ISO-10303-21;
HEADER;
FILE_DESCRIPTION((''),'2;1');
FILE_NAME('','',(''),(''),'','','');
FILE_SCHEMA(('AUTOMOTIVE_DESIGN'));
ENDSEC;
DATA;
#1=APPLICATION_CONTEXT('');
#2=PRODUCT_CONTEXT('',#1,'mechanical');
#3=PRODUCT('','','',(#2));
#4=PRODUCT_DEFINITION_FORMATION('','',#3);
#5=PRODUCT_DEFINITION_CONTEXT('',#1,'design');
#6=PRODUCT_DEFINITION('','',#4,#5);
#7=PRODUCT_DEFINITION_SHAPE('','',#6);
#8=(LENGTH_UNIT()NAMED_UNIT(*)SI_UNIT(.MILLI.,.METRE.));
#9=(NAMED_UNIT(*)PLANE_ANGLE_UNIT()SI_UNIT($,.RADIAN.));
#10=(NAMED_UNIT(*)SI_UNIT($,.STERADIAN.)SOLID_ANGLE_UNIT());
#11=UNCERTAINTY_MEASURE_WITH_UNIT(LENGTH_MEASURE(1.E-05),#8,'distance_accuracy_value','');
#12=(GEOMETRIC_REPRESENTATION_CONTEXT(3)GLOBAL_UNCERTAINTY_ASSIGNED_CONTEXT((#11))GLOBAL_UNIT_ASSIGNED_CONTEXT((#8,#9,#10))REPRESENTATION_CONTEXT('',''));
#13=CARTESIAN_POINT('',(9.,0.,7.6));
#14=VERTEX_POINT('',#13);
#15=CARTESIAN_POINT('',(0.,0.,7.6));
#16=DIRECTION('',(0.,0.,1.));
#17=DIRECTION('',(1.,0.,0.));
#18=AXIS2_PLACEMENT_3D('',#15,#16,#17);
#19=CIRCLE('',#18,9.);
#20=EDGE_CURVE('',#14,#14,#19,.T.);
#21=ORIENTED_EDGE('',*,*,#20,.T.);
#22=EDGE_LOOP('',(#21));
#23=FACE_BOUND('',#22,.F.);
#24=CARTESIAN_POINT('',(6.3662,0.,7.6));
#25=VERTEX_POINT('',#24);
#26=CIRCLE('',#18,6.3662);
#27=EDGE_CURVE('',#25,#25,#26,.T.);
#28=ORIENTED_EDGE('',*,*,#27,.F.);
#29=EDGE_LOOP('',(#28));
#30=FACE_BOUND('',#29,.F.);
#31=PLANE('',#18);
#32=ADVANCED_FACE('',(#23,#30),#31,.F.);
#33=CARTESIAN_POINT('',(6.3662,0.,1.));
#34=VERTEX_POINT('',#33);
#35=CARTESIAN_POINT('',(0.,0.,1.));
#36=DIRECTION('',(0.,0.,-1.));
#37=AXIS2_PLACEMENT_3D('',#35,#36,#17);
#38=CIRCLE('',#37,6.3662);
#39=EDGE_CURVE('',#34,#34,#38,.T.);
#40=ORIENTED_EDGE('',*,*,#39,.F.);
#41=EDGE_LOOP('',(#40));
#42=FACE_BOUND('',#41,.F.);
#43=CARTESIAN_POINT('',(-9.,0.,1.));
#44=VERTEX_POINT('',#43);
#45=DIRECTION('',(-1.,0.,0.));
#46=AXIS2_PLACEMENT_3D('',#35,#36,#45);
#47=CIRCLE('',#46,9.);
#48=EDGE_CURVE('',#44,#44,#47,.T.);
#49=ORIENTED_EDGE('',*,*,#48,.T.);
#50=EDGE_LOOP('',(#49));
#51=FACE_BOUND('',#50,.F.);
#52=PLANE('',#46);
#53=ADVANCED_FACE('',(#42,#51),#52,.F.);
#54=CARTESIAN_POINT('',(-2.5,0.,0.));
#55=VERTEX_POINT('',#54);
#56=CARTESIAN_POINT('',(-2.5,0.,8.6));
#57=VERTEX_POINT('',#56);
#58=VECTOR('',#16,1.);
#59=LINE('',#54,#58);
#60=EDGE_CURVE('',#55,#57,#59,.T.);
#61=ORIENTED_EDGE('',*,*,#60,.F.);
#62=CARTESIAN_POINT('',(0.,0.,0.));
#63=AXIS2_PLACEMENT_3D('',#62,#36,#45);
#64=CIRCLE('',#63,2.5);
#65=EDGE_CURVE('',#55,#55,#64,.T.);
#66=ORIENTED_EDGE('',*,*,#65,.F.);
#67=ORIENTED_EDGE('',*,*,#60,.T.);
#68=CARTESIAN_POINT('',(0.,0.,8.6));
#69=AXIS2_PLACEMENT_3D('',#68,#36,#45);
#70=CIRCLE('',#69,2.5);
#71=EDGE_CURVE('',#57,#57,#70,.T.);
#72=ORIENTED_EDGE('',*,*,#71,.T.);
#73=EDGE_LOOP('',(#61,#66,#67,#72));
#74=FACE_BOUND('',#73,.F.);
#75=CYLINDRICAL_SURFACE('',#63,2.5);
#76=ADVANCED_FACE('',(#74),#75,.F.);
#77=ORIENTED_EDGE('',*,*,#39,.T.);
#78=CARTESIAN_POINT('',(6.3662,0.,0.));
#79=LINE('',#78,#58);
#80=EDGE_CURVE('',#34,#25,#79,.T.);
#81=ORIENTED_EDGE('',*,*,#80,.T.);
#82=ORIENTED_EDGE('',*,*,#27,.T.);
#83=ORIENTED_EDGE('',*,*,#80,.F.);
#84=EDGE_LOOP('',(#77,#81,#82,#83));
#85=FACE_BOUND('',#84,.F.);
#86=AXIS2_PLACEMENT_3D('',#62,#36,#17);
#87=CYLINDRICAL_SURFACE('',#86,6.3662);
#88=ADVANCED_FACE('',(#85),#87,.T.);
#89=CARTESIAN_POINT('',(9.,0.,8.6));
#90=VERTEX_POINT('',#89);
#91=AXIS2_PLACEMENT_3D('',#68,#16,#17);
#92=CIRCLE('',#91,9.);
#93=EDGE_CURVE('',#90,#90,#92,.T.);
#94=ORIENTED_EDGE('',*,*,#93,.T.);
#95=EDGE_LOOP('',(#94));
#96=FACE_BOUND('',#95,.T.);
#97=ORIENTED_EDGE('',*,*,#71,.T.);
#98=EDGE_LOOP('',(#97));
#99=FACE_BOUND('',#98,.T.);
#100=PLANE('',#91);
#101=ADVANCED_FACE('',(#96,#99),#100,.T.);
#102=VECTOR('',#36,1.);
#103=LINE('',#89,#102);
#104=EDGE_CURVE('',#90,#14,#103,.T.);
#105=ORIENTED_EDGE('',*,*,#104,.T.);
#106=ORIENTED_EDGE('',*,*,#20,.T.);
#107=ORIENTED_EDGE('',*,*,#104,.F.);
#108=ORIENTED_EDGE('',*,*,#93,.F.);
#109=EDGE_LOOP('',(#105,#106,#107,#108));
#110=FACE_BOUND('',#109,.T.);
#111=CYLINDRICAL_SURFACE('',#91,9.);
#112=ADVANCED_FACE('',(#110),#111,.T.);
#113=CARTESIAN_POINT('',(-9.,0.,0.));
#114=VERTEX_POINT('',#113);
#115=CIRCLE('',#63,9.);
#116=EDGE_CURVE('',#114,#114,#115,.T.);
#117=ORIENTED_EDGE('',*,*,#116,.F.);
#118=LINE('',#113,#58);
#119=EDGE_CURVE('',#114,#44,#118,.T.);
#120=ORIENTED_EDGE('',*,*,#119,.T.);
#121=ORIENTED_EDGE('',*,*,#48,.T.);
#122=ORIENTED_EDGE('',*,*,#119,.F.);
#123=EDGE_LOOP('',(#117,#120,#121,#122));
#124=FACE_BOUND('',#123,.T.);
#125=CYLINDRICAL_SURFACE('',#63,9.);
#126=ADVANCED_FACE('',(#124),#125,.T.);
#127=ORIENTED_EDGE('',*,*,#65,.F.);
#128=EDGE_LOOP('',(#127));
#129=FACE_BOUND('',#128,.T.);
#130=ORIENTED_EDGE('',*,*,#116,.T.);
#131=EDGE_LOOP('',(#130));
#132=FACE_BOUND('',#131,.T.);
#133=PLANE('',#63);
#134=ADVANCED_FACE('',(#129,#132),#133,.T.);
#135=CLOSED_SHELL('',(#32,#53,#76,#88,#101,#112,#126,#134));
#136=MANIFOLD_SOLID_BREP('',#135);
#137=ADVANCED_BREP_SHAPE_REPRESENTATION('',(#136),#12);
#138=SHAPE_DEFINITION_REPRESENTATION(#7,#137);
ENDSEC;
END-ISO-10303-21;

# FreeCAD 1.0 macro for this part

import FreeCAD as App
import Part
import Sketcher

V = App.Vector

doc = App.newDocument("Part")
params = doc.addObject("Spreadsheet::Sheet", "Params")
for row, (alias, value) in enumerate([
    ("pad1_length", "8.6 mm"),
    ("sketch2_diameter", "18 mm"),
    ("pad2_length", "1 mm"),
    ("sketch3_diameter", "18 mm"),
    ("pad3_length", "1 mm"),
    ("sketch4_diameter", "5 mm"),
], start=1):
    params.set(f"A{row}", alias)
    params.set(f"B{row}", "=" + value)
    params.setAlias(f"B{row}", alias)

body = doc.addObject("PartDesign::Body", "Body")

sketch1 = doc.addObject("Sketcher::SketchObject", "Sketch")
body.addObject(sketch1)
sketch1.AttachmentSupport = (doc.XY_Plane, [""])
sketch1.MapMode = "FlatFace"
sketch1.addGeometry(Part.Circle(V(0, 0, 0), V(0, 0, 1), 6.3662), False)
sketch1.addConstraint(Sketcher.Constraint("Coincident", 0, 3, -1, 1))
sketch1.addConstraint(Sketcher.Constraint("Diameter", 0, 12.7324))
pad1 = doc.addObject("PartDesign::Pad", "Pad")
body.addObject(pad1)
pad1.Profile = sketch1
pad1.setExpression("Length", "Params.pad1_length")

sketch2 = doc.addObject("Sketcher::SketchObject", "Sketch001")
body.addObject(sketch2)
sketch2.AttachmentSupport = (doc.XY_Plane, [""])
sketch2.MapMode = "FlatFace"
sketch2.AttachmentOffset = App.Placement(V(0, 0, 8.6), App.Rotation())
sketch2.addGeometry(Part.Circle(V(0, 0, 0), V(0, 0, 1), 9), False)
sketch2.addGeometry(Part.Circle(V(0, 0, 0), V(0, 0, 1), 6.3662), False)
sketch2.addConstraint(Sketcher.Constraint("Coincident", 0, 3, -1, 1))
sketch2.addConstraint(Sketcher.Constraint("Coincident", 1, 3, -1, 1))
sketch2.addConstraint(Sketcher.Constraint("Diameter", 0, 18.0))
sketch2.addConstraint(Sketcher.Constraint("Diameter", 1, 12.7324))
sketch2.setExpression("Constraints[2]", "Params.sketch2_diameter")
pad2 = doc.addObject("PartDesign::Pad", "Pad001")
body.addObject(pad2)
pad2.Profile = sketch2
pad2.setExpression("Length", "Params.pad2_length")
pad2.Reversed = True

sketch3 = doc.addObject("Sketcher::SketchObject", "Sketch002")
body.addObject(sketch3)
sketch3.AttachmentSupport = (doc.XY_Plane, [""])
sketch3.MapMode = "FlatFace"
sketch3.addGeometry(Part.Circle(V(0, 0, 0), V(0, 0, 1), 9), False)
sketch3.addGeometry(Part.Circle(V(0, 0, 0), V(0, 0, 1), 6.3662), False)
sketch3.addConstraint(Sketcher.Constraint("Coincident", 0, 3, -1, 1))
sketch3.addConstraint(Sketcher.Constraint("Coincident", 1, 3, -1, 1))
sketch3.addConstraint(Sketcher.Constraint("Diameter", 0, 18.0))
sketch3.addConstraint(Sketcher.Constraint("Diameter", 1, 12.7324))
sketch3.setExpression("Constraints[2]", "Params.sketch3_diameter")
pad3 = doc.addObject("PartDesign::Pad", "Pad002")
body.addObject(pad3)
pad3.Profile = sketch3
pad3.setExpression("Length", "Params.pad3_length")

sketch4 = doc.addObject("Sketcher::SketchObject", "Sketch003")
body.addObject(sketch4)
sketch4.AttachmentSupport = (doc.XY_Plane, [""])
sketch4.MapMode = "FlatFace"
sketch4.addGeometry(Part.Circle(V(0, 0, 0), V(0, 0, 1), 2.5), False)
sketch4.addConstraint(Sketcher.Constraint("Coincident", 0, 3, -1, 1))
sketch4.addConstraint(Sketcher.Constraint("Diameter", 0, 5.0))
sketch4.setExpression("Constraints[1]", "Params.sketch4_diameter")
pocket1 = doc.addObject("PartDesign::Pocket", "Pocket")
body.addObject(pocket1)
pocket1.Profile = sketch4
pocket1.Type = "ThroughAll"
pocket1.Reversed = True

doc.recompute()
